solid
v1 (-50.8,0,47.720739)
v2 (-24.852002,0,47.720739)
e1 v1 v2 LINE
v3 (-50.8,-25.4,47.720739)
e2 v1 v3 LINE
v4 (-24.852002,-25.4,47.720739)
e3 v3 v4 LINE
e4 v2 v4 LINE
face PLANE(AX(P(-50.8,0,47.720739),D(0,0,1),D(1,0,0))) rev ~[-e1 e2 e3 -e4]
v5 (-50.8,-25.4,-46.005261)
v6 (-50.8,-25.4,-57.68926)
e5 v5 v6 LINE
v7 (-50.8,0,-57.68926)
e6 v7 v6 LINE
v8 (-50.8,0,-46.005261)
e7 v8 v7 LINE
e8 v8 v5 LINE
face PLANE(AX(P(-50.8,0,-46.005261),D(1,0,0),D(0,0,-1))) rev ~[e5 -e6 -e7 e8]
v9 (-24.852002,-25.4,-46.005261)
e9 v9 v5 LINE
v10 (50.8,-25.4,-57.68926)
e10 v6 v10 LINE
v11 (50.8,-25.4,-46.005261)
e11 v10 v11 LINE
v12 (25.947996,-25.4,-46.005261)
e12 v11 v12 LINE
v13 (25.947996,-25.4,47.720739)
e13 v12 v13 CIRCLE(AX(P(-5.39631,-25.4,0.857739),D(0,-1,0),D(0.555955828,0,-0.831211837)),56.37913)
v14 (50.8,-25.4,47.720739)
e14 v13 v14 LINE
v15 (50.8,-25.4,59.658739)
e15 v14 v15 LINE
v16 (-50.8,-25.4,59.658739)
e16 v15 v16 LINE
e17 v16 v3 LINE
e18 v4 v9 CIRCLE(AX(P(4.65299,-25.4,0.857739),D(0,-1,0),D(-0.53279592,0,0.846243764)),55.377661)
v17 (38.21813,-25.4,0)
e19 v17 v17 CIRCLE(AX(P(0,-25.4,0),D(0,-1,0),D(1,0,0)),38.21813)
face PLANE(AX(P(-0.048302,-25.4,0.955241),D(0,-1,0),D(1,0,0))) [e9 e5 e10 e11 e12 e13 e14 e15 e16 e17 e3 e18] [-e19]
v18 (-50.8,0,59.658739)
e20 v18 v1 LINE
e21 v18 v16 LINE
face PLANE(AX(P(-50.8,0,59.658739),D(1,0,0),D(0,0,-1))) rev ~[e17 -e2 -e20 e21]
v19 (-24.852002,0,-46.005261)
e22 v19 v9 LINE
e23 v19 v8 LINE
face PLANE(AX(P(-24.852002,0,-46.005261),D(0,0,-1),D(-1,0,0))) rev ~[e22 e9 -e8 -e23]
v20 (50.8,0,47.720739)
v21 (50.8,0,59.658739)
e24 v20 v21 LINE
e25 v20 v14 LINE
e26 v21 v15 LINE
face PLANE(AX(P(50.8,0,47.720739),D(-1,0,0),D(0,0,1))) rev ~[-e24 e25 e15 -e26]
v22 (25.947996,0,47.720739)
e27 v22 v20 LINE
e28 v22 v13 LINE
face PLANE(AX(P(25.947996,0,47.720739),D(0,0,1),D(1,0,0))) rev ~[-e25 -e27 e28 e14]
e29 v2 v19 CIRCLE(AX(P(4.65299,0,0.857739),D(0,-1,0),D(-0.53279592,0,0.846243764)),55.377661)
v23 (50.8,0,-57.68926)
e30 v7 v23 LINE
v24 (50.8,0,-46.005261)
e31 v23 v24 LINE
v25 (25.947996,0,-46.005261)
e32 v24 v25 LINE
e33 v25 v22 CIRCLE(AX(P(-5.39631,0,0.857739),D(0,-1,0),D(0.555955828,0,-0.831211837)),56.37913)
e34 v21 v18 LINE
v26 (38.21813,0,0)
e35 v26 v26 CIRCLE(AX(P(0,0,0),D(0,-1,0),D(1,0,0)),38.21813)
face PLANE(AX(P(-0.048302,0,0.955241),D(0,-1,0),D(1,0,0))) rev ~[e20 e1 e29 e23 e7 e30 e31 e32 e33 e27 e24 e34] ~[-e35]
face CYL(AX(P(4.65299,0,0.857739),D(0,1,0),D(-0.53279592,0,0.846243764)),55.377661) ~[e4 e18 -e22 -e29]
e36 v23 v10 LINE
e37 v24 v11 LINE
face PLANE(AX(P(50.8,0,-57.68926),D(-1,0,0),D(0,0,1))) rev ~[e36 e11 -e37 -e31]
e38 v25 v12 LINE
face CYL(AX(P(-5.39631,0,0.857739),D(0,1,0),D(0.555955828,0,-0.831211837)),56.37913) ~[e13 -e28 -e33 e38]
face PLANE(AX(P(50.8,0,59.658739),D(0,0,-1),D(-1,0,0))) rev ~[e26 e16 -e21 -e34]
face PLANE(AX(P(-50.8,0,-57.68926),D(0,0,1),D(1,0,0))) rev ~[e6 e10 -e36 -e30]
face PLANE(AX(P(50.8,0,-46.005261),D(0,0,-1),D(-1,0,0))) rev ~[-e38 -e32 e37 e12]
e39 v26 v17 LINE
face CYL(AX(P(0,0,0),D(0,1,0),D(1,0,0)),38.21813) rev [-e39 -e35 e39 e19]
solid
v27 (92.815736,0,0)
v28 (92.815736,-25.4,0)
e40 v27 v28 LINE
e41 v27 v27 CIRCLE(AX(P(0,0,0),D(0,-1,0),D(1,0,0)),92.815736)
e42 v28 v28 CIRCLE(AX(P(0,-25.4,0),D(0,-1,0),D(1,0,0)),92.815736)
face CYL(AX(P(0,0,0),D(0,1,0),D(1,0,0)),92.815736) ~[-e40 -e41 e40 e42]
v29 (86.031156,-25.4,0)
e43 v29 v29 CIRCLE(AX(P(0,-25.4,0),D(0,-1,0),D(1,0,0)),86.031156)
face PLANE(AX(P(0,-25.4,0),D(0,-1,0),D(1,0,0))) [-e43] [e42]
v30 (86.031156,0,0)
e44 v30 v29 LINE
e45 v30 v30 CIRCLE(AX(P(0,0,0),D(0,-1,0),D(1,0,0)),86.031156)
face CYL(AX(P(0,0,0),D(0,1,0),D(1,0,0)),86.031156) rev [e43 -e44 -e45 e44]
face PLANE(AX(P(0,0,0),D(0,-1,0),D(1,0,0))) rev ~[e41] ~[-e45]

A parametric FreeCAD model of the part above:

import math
import FreeCAD as App
import Part
import Sketcher
from FreeCAD import Vector
Q = App.Units.Quantity

doc = App.newDocument("Part")
params = doc.addObject("Spreadsheet::Sheet", "Params")
for row, (alias, value) in enumerate([
    ("sketch1_width", "4 in"),
    ("sketch1_height", "0.47 in"),
    ("sketch1_height2", "0.46 in"),
    ("pad1_length", "1 in"),
], start=1):
    params.set(f"A{row}", alias)
    params.set(f"B{row}", "=" + value)
    params.setAlias(f"B{row}", alias)

body = doc.addObject("PartDesign::Body", "Body")
body.AllowCompound = True

sketch1 = doc.addObject("Sketcher::SketchObject", "Sketch")
body.addObject(sketch1)
sketch1.AttachmentSupport = (doc.XZ_Plane, [""])
sketch1.MapMode = "FlatFace"
sketch1.addGeometry([
    Part.Circle(Vector(0, 0, 0), Vector(0, 0, 1), 93),
    Part.Circle(Vector(0, 0, 0), Vector(0, 0, 1), 86),
    Part.LineSegment(Vector(51, 60, 0), Vector(-51, 60, 0)),
    Part.LineSegment(Vector(-51, 60, 0), Vector(-51, 48, 0)),
    Part.LineSegment(Vector(-51, 48, 0), Vector(-25, 48, 0)),
    Part.ArcOfCircle(Part.Circle(Vector(5, 1, 0), Vector(0, 0, 1), 55), math.radians(122), math.radians(238)),
    Part.LineSegment(Vector(-25, -46, 0), Vector(-51, -46, 0)),
    Part.LineSegment(Vector(-51, -46, 0), Vector(-51, -58, 0)),
    Part.LineSegment(Vector(-51, -58, 0), Vector(51, -58, 0)),
    Part.LineSegment(Vector(51, -58, 0), Vector(51, -46, 0)),
    Part.LineSegment(Vector(51, -46, 0), Vector(26, -46, 0)),
    Part.ArcOfCircle(Part.Circle(Vector(-5, 1, 0), Vector(0, 0, 1), 56), math.radians(-56), math.radians(56)),
    Part.LineSegment(Vector(26, 48, 0), Vector(51, 48, 0)),
    Part.LineSegment(Vector(51, 48, 0), Vector(51, 60, 0)),
    Part.Circle(Vector(0, 0, 0), Vector(0, 0, 1), 38),
], False)
sketch1.addConstraint([
    Sketcher.Constraint("Coincident", 2, 2, 3, 1),
    Sketcher.Constraint("Coincident", 3, 2, 4, 1),
    Sketcher.Constraint("Coincident", 4, 2, 5, 1),
    Sketcher.Constraint("Coincident", 5, 2, 6, 1),
    Sketcher.Constraint("Coincident", 6, 2, 7, 1),
    Sketcher.Constraint("Coincident", 7, 2, 8, 1),
    Sketcher.Constraint("Coincident", 8, 2, 9, 1),
    Sketcher.Constraint("Coincident", 9, 2, 10, 1),
    Sketcher.Constraint("Coincident", 10, 2, 11, 1),
    Sketcher.Constraint("Coincident", 11, 2, 12, 1),
    Sketcher.Constraint("Coincident", 12, 2, 13, 1),
    Sketcher.Constraint("Coincident", 13, 2, 2, 1),
    Sketcher.Constraint("Horizontal", 2),
    Sketcher.Constraint("Vertical", 3),
    Sketcher.Constraint("Horizontal", 4),
    Sketcher.Constraint("Horizontal", 6),
    Sketcher.Constraint("Vertical", 7),
    Sketcher.Constraint("Horizontal", 8),
    Sketcher.Constraint("Vertical", 9),
    Sketcher.Constraint("Horizontal", 10),
    Sketcher.Constraint("Horizontal", 12),
    Sketcher.Constraint("Vertical", 13),
    Sketcher.Constraint("Coincident", 0, 3, -1, 1),
    Sketcher.Constraint("Coincident", 1, 3, -1, 1),
    Sketcher.Constraint("Coincident", 14, 3, -1, 1),
    Sketcher.Constraint("Symmetric", 6, 2, 9, 2, -2),
    Sketcher.Constraint("Symmetric", 3, 2, 12, 2, -2),
    Sketcher.Constraint("Horizontal", 5, 3, 11, 3),
    Sketcher.Constraint("Vertical", 4, 2, 5, 2),
    Sketcher.Constraint("Vertical", 3, 2, 6, 2),
    Sketcher.Constraint("DistanceX", 2, 2, 2, 1, Q("4 in")),
    Sketcher.Constraint("DistanceX", 5, 2, 10, 2, Q("1.9999999 in")),
    Sketcher.Constraint("DistanceY", 3, 2, 3, 1, Q("0.47 in")),
    Sketcher.Constraint("DistanceY", 7, 2, 7, 1, Q("0.46 in")),
    Sketcher.Constraint("Diameter", 0, Q("185.631472 mm")),
    Sketcher.Constraint("Diameter", 1, Q("172.062312 mm")),
    Sketcher.Constraint("Diameter", 14, Q("76.43626 mm")),
    Sketcher.Constraint("Radius", 5, Q("55.377661 mm")),
    Sketcher.Constraint("Radius", 11, Q("56.37913 mm")),
    Sketcher.Constraint("DistanceY", 11, 3, 2, 2, Q("2.315 in")),
    Sketcher.Constraint("DistanceX", 4, 2, -1, 1, Q("24.852002 mm")),
    Sketcher.Constraint("DistanceY", -1, 1, 5, 3, Q("0.857739 mm")),
])
sketch1.setExpression("Constraints[30]", "Params.sketch1_width")
sketch1.setExpression("Constraints[32]", "Params.sketch1_height")
sketch1.setExpression("Constraints[33]", "Params.sketch1_height2")
pad1 = doc.addObject("PartDesign::Pad", "Pad")
body.addObject(pad1)
pad1.Profile = sketch1
pad1.setExpression("Length", "Params.pad1_length")

doc.recompute()
